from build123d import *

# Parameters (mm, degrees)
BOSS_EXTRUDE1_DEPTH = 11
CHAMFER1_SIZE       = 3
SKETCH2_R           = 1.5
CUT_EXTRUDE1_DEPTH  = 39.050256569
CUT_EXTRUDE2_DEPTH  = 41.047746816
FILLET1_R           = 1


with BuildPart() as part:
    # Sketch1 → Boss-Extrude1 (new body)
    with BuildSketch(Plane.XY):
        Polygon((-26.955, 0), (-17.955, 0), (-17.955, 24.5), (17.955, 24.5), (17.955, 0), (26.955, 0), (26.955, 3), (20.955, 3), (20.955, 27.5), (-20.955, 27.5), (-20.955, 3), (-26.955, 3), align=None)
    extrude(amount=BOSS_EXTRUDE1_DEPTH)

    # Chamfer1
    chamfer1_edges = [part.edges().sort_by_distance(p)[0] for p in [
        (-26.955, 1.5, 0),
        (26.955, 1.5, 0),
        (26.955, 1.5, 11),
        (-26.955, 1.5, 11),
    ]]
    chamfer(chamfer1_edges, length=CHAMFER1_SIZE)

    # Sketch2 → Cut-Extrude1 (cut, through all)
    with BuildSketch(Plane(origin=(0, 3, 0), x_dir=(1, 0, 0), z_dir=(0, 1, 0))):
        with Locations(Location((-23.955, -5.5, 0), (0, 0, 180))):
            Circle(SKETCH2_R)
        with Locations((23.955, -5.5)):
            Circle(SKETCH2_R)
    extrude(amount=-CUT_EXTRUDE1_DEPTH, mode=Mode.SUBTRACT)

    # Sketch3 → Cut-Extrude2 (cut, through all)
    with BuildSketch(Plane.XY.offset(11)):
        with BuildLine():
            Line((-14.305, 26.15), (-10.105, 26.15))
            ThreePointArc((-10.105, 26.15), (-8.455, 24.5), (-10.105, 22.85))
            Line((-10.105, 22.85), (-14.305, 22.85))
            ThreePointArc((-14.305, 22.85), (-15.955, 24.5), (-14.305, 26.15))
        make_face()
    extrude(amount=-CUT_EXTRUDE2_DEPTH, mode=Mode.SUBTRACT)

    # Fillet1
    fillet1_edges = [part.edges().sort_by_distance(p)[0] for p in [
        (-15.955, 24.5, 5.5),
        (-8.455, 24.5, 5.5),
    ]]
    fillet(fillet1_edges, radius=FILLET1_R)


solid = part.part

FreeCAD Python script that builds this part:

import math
import FreeCAD as App
import Part
import Sketcher

V = App.Vector
Q = App.Units.Quantity


def edges_at(feature, points):
    """Names of the edges that pass closest to the given points."""
    edges = feature.Shape.Edges
    near = lambda p: min(range(len(edges)), key=lambda i: edges[i].distToShape(Part.Vertex(*p))[0])
    return sorted({f"Edge{near(p) + 1}" for p in points})

doc = App.newDocument("Part")
body = doc.addObject("PartDesign::Body", "Body")

sketch1 = doc.addObject("Sketcher::SketchObject", "Sketch")
body.addObject(sketch1)
sketch1.AttachmentSupport = (doc.XY_Plane, [""])
sketch1.MapMode = "FlatFace"
sketch1.addGeometry(Part.LineSegment(V(-26.955, 0, 0), V(-17.955, 0, 0)), False)
sketch1.addGeometry(Part.LineSegment(V(-17.955, 0, 0), V(-17.955, 24.5, 0)), False)
sketch1.addGeometry(Part.LineSegment(V(-17.955, 24.5, 0), V(17.955, 24.5, 0)), False)
sketch1.addGeometry(Part.LineSegment(V(17.955, 24.5, 0), V(17.955, 0, 0)), False)
sketch1.addGeometry(Part.LineSegment(V(17.955, 0, 0), V(26.955, 0, 0)), False)
sketch1.addGeometry(Part.LineSegment(V(26.955, 0, 0), V(26.955, 3, 0)), False)
sketch1.addGeometry(Part.LineSegment(V(26.955, 3, 0), V(20.955, 3, 0)), False)
sketch1.addGeometry(Part.LineSegment(V(20.955, 3, 0), V(20.955, 27.5, 0)), False)
sketch1.addGeometry(Part.LineSegment(V(20.955, 27.5, 0), V(-20.955, 27.5, 0)), False)
sketch1.addGeometry(Part.LineSegment(V(-20.955, 27.5, 0), V(-20.955, 3, 0)), False)
sketch1.addGeometry(Part.LineSegment(V(-20.955, 3, 0), V(-26.955, 3, 0)), False)
sketch1.addGeometry(Part.LineSegment(V(-26.955, 3, 0), V(-26.955, 0, 0)), False)
sketch1.addConstraint(Sketcher.Constraint("Coincident", 0, 2, 1, 1))
sketch1.addConstraint(Sketcher.Constraint("Coincident", 1, 2, 2, 1))
sketch1.addConstraint(Sketcher.Constraint("Coincident", 2, 2, 3, 1))
sketch1.addConstraint(Sketcher.Constraint("Coincident", 3, 2, 4, 1))
sketch1.addConstraint(Sketcher.Constraint("Coincident", 4, 2, 5, 1))
sketch1.addConstraint(Sketcher.Constraint("Coincident", 5, 2, 6, 1))
sketch1.addConstraint(Sketcher.Constraint("Coincident", 6, 2, 7, 1))
sketch1.addConstraint(Sketcher.Constraint("Coincident", 7, 2, 8, 1))
sketch1.addConstraint(Sketcher.Constraint("Coincident", 8, 2, 9, 1))
sketch1.addConstraint(Sketcher.Constraint("Coincident", 9, 2, 10, 1))
sketch1.addConstraint(Sketcher.Constraint("Coincident", 10, 2, 11, 1))
sketch1.addConstraint(Sketcher.Constraint("Coincident", 11, 2, 0, 1))
sketch1.addConstraint(Sketcher.Constraint("Horizontal", 0))
sketch1.addConstraint(Sketcher.Constraint("Vertical", 1))
sketch1.addConstraint(Sketcher.Constraint("Horizontal", 2))
sketch1.addConstraint(Sketcher.Constraint("Vertical", 3))
sketch1.addConstraint(Sketcher.Constraint("Horizontal", 4))
sketch1.addConstraint(Sketcher.Constraint("Vertical", 5))
sketch1.addConstraint(Sketcher.Constraint("Horizontal", 6))
sketch1.addConstraint(Sketcher.Constraint("Vertical", 7))
sketch1.addConstraint(Sketcher.Constraint("Horizontal", 8))
sketch1.addConstraint(Sketcher.Constraint("Vertical", 9))
sketch1.addConstraint(Sketcher.Constraint("Horizontal", 10))
sketch1.addConstraint(Sketcher.Constraint("Vertical", 11))
sketch1.addConstraint(Sketcher.Constraint("Symmetric", 0, 2, 3, 2, -1, 1))
sketch1.addConstraint(Sketcher.Constraint("Symmetric", 6, 2, 9, 2, -2))
sketch1.addConstraint(Sketcher.Constraint("Symmetric", 4, 2, 11, 2, -2))
sketch1.addConstraint(Sketcher.Constraint("Equal", 3, 7))
sketch1.addConstraint(Sketcher.Constraint("DistanceX", 0, 1, 0, 2, Q("9 mm")))
sketch1.addConstraint(Sketcher.Constraint("DistanceX", 6, 2, 6, 1, Q("6 mm")))
sketch1.addConstraint(Sketcher.Constraint("DistanceY", 5, 1, 5, 2, Q("3 mm")))
sketch1.addConstraint(Sketcher.Constraint("DistanceY", 1, 1, 1, 2, Q("24.5 mm")))
sketch1.addConstraint(Sketcher.Constraint("DistanceX", 2, 1, 2, 2, Q("35.91 mm")))
pad1 = doc.addObject("PartDesign::Pad", "Pad")
body.addObject(pad1)
pad1.Profile = sketch1
pad1.Length = 11
doc.recompute()

chamfer = doc.addObject("PartDesign::Chamfer", "Chamfer")
body.addObject(chamfer)
chamfer.Base = (pad1, edges_at(pad1, [
    (-26.955, 1.5, 0),
    (26.955, 1.5, 0),
    (26.955, 1.5, 11),
    (-26.955, 1.5, 11),
]))
chamfer.Size = 3

sketch2 = doc.addObject("Sketcher::SketchObject", "Sketch001")
body.addObject(sketch2)
sketch2.AttachmentSupport = (doc.XZ_Plane, [""])
sketch2.MapMode = "FlatFace"
sketch2.AttachmentOffset = App.Placement(V(0, 0, -3), App.Rotation())
sketch2.addGeometry(Part.Circle(V(-23.955, 5.5, 0), V(0, 0, 1), 1.5), False)
sketch2.addGeometry(Part.Circle(V(23.955, 5.5, 0), V(0, 0, 1), 1.5), False)
sketch2.addConstraint(Sketcher.Constraint("Equal", 0, 1))
sketch2.addConstraint(Sketcher.Constraint("Symmetric", 0, 3, 1, 3, -2))
sketch2.addConstraint(Sketcher.Constraint("Diameter", 0, Q("3 mm")))
sketch2.addConstraint(Sketcher.Constraint("DistanceY", -1, 1, 0, 3, Q("5.5 mm")))
sketch2.addConstraint(Sketcher.Constraint("DistanceX", 0, 3, 1, 3, Q("47.91 mm")))
pocket1 = doc.addObject("PartDesign::Pocket", "Pocket")
body.addObject(pocket1)
pocket1.Profile = sketch2
pocket1.Type = "ThroughAll"
pocket1.Reversed = True

sketch3 = doc.addObject("Sketcher::SketchObject", "Sketch002")
body.addObject(sketch3)
sketch3.AttachmentSupport = (doc.XY_Plane, [""])
sketch3.MapMode = "FlatFace"
sketch3.AttachmentOffset = App.Placement(V(0, 0, 11), App.Rotation())
sketch3.addGeometry(Part.LineSegment(V(-10.105, 26.15, 0), V(-14.305, 26.15, 0)), False)
sketch3.addGeometry(Part.ArcOfCircle(Part.Circle(V(-14.305, 24.5, 0), V(0, 0, 1), 1.65), math.radians(90), math.radians(270)), False)
sketch3.addGeometry(Part.LineSegment(V(-14.305, 22.85, 0), V(-10.105, 22.85, 0)), False)
sketch3.addGeometry(Part.ArcOfCircle(Part.Circle(V(-10.105, 24.5, 0), V(0, 0, 1), 1.65), math.radians(-90), math.radians(90)), False)
sketch3.addConstraint(Sketcher.Constraint("Tangent", 0, 2, 1, 1))
sketch3.addConstraint(Sketcher.Constraint("Tangent", 1, 2, 2, 1))
sketch3.addConstraint(Sketcher.Constraint("Tangent", 2, 2, 3, 1))
sketch3.addConstraint(Sketcher.Constraint("Tangent", 3, 2, 0, 1))
sketch3.addConstraint(Sketcher.Constraint("Horizontal", 0))
sketch3.addConstraint(Sketcher.Constraint("Horizontal", 2))
sketch3.addConstraint(Sketcher.Constraint("Radius", 1, Q("1.65 mm")))
sketch3.addConstraint(Sketcher.Constraint("DistanceX", 0, 2, 0, 1, Q("4.2 mm")))
sketch3.addConstraint(Sketcher.Constraint("DistanceY", -1, 1, 1, 3, Q("24.5 mm")))
sketch3.addConstraint(Sketcher.Constraint("DistanceX", 1, 3, -1, 1, Q("14.305 mm")))
pocket2 = doc.addObject("PartDesign::Pocket", "Pocket001")
body.addObject(pocket2)
pocket2.Profile = sketch3
pocket2.Type = "ThroughAll"
doc.recompute()

fillet = doc.addObject("PartDesign::Fillet", "Fillet")
body.addObject(fillet)
fillet.Base = (pocket2, edges_at(pocket2, [(-15.955, 24.5, 5.5), (-8.455, 24.5, 5.5)]))
fillet.Radius = 1

doc.recompute()
